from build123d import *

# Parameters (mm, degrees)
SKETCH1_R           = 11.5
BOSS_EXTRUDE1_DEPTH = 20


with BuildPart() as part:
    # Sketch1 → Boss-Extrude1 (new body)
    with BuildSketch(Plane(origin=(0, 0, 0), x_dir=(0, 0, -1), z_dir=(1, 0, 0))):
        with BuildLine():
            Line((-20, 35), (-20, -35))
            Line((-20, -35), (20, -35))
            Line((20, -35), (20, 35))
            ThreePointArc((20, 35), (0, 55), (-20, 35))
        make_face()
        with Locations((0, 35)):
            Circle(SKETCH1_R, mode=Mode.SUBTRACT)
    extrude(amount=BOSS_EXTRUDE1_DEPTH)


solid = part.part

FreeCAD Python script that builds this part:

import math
import FreeCAD as App
import Part
import Sketcher

doc = App.newDocument("Part")
body = doc.addObject("PartDesign::Body", "Body")

# Sketch on YZ plane
sketch1 = body.newObject("Sketcher::SketchObject", "Sketch")
sketch1.AttachmentSupport = (doc.getObject("YZ_Plane"), [""])
sketch1.MapMode = "FlatFace"
sketch1.addGeometry([
    Part.LineSegment(App.Vector(35, 20, 0), App.Vector(-35, 20, 0)),  # 0
    Part.LineSegment(App.Vector(-35, 20, 0), App.Vector(-35, -20, 0)),  # 1
    Part.LineSegment(App.Vector(-35, -20, 0), App.Vector(35, -20, 0)),  # 2
    Part.ArcOfCircle(Part.Circle(App.Vector(35, 0, 0), App.Vector(0, 0, 1), 20), math.radians(-90), math.radians(90)),  # 3
    Part.Circle(App.Vector(35, 0, 0), App.Vector(0, 0, 1), 12),  # 4
], False)
sketch1.addConstraint([
    Sketcher.Constraint("Coincident", 0, 2, 1, 1),
    Sketcher.Constraint("Coincident", 1, 2, 2, 1),
    Sketcher.Constraint("Tangent", 2, 2, 3, 1),
    Sketcher.Constraint("Tangent", 3, 2, 0, 1),
    Sketcher.Constraint("Horizontal", 0),
    Sketcher.Constraint("Vertical", 1),
    Sketcher.Constraint("Horizontal", 2),
    Sketcher.Constraint("Coincident", 4, 3, 3, 3),
    Sketcher.Constraint("Symmetric", 0, 2, 2, 2, -1, 1),
    Sketcher.Constraint("Diameter", 4, 23.0),
    Sketcher.Constraint("Radius", 3, 20.0),
    Sketcher.Constraint("DistanceX", 0, 2, 0, 1, 70.0),
])
pad1 = body.newObject("PartDesign::Pad", "Pad")
pad1.Profile = sketch1
pad1.Length = 20

doc.recompute()
